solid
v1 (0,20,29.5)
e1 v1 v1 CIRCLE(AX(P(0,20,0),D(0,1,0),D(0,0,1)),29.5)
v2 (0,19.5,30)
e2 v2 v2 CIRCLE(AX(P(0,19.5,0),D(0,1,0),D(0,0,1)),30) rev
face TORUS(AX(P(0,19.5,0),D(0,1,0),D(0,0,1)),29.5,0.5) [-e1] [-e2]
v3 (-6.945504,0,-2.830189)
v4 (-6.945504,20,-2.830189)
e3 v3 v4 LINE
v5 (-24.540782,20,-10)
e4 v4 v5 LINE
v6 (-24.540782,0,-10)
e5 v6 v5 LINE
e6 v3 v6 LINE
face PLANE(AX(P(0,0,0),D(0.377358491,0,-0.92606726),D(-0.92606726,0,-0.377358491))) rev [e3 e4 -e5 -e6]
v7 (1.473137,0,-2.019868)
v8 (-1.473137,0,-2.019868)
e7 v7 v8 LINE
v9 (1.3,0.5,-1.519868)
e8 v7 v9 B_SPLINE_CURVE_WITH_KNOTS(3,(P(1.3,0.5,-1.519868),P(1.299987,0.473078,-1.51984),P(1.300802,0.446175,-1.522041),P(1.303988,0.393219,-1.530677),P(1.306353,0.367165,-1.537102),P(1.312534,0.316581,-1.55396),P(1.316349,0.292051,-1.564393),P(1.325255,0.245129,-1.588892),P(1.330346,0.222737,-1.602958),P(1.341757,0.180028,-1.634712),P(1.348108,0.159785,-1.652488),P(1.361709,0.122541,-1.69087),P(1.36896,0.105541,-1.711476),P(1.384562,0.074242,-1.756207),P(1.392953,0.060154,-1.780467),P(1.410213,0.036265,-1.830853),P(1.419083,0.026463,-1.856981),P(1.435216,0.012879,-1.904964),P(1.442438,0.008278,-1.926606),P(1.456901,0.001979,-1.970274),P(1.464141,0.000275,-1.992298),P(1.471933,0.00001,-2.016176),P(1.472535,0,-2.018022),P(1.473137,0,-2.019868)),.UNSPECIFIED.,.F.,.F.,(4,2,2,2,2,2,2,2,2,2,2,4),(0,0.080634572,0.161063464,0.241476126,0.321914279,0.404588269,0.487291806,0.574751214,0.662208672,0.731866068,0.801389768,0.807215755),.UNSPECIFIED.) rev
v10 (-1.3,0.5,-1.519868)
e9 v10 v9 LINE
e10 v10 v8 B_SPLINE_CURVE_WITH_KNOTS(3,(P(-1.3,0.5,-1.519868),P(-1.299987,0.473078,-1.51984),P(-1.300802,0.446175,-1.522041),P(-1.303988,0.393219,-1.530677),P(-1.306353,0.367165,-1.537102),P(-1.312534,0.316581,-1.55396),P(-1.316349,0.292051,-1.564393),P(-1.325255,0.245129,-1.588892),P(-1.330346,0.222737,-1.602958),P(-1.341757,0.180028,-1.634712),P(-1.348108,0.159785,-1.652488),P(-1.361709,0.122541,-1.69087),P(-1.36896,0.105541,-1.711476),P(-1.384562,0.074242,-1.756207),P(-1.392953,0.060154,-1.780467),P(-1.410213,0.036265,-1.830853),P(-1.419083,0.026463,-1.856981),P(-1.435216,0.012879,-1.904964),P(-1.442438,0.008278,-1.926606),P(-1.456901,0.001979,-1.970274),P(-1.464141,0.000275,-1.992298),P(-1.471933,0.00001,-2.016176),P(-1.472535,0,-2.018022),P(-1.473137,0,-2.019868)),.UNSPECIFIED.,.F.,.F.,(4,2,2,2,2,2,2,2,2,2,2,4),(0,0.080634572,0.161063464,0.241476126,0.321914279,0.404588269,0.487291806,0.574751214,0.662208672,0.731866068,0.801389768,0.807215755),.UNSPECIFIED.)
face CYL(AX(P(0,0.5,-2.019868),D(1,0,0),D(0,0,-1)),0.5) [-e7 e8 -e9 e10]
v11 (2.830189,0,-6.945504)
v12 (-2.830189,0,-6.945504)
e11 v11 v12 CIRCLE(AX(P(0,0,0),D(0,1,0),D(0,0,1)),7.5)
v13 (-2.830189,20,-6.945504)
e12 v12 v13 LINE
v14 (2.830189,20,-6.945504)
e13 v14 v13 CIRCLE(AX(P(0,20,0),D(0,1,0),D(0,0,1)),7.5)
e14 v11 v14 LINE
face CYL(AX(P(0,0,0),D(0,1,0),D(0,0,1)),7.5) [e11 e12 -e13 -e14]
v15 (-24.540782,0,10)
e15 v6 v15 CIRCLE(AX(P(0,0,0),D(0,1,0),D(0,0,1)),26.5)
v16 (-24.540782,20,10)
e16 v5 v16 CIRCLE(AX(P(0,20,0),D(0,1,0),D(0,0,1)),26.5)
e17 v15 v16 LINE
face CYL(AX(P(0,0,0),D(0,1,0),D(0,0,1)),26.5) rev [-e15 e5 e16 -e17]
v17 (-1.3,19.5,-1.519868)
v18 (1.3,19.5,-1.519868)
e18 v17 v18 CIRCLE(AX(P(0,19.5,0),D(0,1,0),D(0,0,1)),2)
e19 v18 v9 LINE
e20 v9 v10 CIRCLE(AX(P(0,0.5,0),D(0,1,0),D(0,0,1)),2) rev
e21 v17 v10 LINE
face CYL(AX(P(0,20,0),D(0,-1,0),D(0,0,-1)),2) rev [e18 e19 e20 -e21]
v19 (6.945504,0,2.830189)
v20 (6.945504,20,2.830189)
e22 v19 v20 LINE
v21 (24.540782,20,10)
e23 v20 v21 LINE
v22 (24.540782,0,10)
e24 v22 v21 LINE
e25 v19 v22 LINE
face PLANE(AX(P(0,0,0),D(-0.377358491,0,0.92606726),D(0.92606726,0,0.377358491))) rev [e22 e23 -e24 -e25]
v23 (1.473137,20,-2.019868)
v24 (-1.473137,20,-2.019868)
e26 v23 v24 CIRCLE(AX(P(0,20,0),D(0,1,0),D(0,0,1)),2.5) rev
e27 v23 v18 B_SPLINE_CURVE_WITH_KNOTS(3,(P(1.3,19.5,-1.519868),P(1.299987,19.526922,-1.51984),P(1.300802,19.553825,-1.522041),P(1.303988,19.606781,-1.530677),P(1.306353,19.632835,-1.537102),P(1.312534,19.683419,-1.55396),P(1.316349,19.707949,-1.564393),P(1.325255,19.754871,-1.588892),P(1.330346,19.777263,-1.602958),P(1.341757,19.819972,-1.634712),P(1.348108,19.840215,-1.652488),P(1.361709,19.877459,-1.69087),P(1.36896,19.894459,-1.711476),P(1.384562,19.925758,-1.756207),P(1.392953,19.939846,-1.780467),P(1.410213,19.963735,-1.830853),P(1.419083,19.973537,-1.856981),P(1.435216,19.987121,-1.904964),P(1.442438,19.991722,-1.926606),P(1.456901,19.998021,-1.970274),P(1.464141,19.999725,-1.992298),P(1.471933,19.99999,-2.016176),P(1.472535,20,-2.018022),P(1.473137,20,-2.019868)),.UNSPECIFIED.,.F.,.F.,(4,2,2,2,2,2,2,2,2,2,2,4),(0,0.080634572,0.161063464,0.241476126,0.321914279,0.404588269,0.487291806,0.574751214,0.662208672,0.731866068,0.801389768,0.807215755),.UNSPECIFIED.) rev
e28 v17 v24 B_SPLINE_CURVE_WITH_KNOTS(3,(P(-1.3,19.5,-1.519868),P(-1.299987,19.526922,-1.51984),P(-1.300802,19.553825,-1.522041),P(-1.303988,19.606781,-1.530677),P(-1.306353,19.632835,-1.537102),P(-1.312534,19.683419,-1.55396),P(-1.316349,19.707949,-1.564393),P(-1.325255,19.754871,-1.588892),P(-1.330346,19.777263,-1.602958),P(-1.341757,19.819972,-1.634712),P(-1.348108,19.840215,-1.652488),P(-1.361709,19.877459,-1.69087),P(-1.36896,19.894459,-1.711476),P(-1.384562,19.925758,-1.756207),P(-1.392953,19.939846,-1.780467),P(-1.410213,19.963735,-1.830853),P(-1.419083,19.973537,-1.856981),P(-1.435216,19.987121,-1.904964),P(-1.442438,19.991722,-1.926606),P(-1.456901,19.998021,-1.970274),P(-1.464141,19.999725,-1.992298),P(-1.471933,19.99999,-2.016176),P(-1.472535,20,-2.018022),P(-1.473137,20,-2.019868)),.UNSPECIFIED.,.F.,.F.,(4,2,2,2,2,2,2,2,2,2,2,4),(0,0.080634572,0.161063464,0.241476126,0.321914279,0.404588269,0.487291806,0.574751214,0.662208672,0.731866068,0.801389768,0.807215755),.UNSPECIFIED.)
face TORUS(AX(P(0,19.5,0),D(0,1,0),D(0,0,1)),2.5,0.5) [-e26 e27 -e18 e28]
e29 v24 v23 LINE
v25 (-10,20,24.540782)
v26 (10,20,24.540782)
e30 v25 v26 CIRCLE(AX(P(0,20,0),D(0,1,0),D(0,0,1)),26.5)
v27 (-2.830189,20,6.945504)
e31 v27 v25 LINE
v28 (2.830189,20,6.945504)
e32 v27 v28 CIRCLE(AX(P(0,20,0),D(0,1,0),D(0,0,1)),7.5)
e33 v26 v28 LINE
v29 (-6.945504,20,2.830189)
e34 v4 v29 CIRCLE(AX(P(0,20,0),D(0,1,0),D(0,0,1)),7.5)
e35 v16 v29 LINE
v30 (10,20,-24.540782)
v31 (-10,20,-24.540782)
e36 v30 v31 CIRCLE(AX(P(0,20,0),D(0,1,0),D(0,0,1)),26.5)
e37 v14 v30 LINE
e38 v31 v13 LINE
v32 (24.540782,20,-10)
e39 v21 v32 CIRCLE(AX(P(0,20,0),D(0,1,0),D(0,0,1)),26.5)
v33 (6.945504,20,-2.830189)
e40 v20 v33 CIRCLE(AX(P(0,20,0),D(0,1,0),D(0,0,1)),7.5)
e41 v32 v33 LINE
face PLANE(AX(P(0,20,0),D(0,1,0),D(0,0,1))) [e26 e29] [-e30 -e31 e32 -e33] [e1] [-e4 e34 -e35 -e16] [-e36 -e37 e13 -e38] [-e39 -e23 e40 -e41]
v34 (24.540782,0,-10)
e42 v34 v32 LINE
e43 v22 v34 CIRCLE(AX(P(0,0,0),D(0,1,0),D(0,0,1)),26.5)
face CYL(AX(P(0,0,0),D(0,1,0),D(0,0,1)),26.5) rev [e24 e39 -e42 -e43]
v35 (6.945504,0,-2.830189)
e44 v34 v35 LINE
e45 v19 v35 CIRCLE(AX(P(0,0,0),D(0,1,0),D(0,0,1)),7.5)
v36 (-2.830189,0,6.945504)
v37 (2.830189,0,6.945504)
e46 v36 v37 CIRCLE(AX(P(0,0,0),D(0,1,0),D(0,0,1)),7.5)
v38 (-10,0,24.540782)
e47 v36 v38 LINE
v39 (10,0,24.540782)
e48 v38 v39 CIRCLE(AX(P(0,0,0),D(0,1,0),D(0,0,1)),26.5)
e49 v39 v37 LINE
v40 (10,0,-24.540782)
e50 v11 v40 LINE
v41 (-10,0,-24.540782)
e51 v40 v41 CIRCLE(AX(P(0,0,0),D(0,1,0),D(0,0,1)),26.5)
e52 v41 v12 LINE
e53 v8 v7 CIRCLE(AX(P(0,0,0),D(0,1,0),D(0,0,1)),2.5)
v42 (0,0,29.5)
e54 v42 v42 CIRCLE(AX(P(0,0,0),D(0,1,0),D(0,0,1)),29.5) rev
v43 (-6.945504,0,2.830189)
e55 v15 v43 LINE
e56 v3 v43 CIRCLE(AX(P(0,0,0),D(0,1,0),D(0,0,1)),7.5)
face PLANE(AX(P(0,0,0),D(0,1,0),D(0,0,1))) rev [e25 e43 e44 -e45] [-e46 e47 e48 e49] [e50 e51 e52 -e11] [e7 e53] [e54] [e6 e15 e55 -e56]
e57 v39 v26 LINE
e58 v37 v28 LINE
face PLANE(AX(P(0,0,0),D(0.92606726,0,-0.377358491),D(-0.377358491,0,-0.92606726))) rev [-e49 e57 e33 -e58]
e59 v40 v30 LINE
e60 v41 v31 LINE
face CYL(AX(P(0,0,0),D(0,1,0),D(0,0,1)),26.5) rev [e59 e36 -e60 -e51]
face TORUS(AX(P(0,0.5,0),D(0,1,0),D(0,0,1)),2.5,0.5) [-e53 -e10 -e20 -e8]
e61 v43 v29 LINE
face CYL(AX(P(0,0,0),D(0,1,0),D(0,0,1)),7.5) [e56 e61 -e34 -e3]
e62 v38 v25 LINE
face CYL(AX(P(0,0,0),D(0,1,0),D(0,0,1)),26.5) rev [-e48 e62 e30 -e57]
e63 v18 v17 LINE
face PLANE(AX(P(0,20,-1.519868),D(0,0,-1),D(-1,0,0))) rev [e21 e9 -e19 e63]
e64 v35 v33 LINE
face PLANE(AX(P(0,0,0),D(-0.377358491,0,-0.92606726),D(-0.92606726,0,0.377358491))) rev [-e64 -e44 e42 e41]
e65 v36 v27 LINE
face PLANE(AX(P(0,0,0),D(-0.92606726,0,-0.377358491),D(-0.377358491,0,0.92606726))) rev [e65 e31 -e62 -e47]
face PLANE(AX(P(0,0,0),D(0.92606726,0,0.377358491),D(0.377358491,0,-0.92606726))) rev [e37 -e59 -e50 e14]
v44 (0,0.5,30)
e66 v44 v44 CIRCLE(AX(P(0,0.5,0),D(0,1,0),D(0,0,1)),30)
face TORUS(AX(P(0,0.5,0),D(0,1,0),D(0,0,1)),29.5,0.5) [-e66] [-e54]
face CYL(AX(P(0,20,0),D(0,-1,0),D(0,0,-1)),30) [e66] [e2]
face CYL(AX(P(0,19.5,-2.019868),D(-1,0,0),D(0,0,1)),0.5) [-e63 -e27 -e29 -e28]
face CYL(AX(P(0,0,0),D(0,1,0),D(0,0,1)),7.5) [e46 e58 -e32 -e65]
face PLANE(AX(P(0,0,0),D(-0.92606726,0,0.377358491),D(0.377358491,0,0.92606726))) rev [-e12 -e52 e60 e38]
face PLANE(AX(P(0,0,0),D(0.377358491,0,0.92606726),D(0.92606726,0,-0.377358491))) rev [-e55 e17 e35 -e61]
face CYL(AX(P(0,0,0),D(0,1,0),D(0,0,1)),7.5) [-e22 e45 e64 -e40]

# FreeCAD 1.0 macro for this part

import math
import FreeCAD as App
import Part
import Sketcher


def edges_at(feature, points):
    """Names of the edges that pass closest to the given points."""
    edges = feature.Shape.Edges
    near = lambda p: min(range(len(edges)), key=lambda i: edges[i].distToShape(Part.Vertex(*p))[0])
    return sorted({f"Edge{near(p) + 1}" for p in points})

doc = App.newDocument("Part")
params = doc.addObject("Spreadsheet::Sheet", "Params")
for row, (alias, value) in enumerate([
    ("sketch1_diameter", "60 mm"),
    ("sketch1_radius", "2 mm"),
    ("sketch1_width", "2.6 mm"),
    ("pad1_length", "20 mm"),
    ("fillet_radius", "0.5 mm"),
    ("sketch2_radius", "26.5 mm"),
    ("sketch2_radius2", "7.5 mm"),
    ("pocket1_length", "20 mm"),
], start=1):
    params.set(f"A{row}", alias)
    params.set(f"B{row}", "=" + value)
    params.setAlias(f"B{row}", alias)

body = doc.addObject("PartDesign::Body", "Body")

# Sketch on XZ plane
sketch1 = doc.addObject("Sketcher::SketchObject", "Sketch")
body.addObject(sketch1)
sketch1.AttachmentSupport = (doc.XZ_Plane, [""])
sketch1.MapMode = "FlatFace"
sketch1.addGeometry(Part.Circle(App.Vector(0, 0, 0), App.Vector(0, 0, 1), 30), False)
sketch1.addGeometry(Part.ArcOfCircle(Part.Circle(App.Vector(0, 0, 0), App.Vector(0, 0, 1), 2), math.radians(-49), math.radians(229)), False)
sketch1.addGeometry(Part.LineSegment(App.Vector(-1.3, -1.5, 0), App.Vector(1.3, -1.5, 0)), False)
sketch1.addConstraint(Sketcher.Constraint("Coincident", 1, 1, 2, 2))
sketch1.addConstraint(Sketcher.Constraint("Coincident", 2, 1, 1, 2))
sketch1.addConstraint(Sketcher.Constraint("Horizontal", 2))
sketch1.addConstraint(Sketcher.Constraint("Coincident", 0, 3, -1, 1))
sketch1.addConstraint(Sketcher.Constraint("Coincident", 1, 3, -1, 1))
sketch1.addConstraint(Sketcher.Constraint("Diameter", 0, 60.0))
sketch1.addConstraint(Sketcher.Constraint("Radius", 1, 2.0))
sketch1.addConstraint(Sketcher.Constraint("DistanceX", 2, 1, 2, 2, 2.6))
sketch1.setExpression("Constraints[5]", "Params.sketch1_diameter")
sketch1.setExpression("Constraints[6]", "Params.sketch1_radius")
sketch1.setExpression("Constraints[7]", "Params.sketch1_width")
pad1 = doc.addObject("PartDesign::Pad", "Pad")
body.addObject(pad1)
pad1.Profile = sketch1
pad1.setExpression("Length", "Params.pad1_length")
pad1.Reversed = True
doc.recompute()

fillet = doc.addObject("PartDesign::Fillet", "Fillet")
body.addObject(fillet)
fillet.Base = (pad1, edges_at(pad1, [
    (0, 20, -1.52),
    (-30, 20, 0),
    (-30, 0, 0),
    (0, 0, -1.52),
    (0, 0, 2),
    (0, 20, 2),
]))
fillet.setExpression("Radius", "Params.fillet_radius")

# Sketch on XZ plane
sketch2 = doc.addObject("Sketcher::SketchObject", "Sketch001")
body.addObject(sketch2)
sketch2.AttachmentSupport = (doc.XZ_Plane, [""])
sketch2.MapMode = "FlatFace"
sketch2.AttachmentOffset = App.Placement(App.Vector(0, 0, -20), App.Rotation())
sketch2.addGeometry(Part.ArcOfCircle(Part.Circle(App.Vector(0, 0, 0), App.Vector(0, 0, 1), 26.5), math.radians(-112), math.radians(-68)), False)
sketch2.addGeometry(Part.LineSegment(App.Vector(-10, -24.5, 0), App.Vector(-2.8, -6.9, 0)), False)
sketch2.addGeometry(Part.ArcOfCircle(Part.Circle(App.Vector(0, 0, 0), App.Vector(0, 0, 1), 7.5), math.radians(-112), math.radians(-68)), False)
sketch2.addGeometry(Part.LineSegment(App.Vector(2.8, -6.9, 0), App.Vector(10, -24.5, 0)), False)
sketch2.addGeometry(Part.LineSegment(App.Vector(-6.9, -2.8, 0), App.Vector(-24.5, -10, 0)), False)
sketch2.addGeometry(Part.ArcOfCircle(Part.Circle(App.Vector(0, 0, 0), App.Vector(0, 0, 1), 26.5), math.radians(158), math.radians(202)), False)
sketch2.addGeometry(Part.LineSegment(App.Vector(-24.5, 10, 0), App.Vector(-6.9, 2.8, 0)), False)
sketch2.addGeometry(Part.ArcOfCircle(Part.Circle(App.Vector(0, 0, 0), App.Vector(0, 0, 1), 7.5), math.radians(158), math.radians(202)), False)
sketch2.addGeometry(Part.ArcOfCircle(Part.Circle(App.Vector(0, 0, 0), App.Vector(0, 0, 1), 26.5), math.radians(-22), math.radians(0)), False)
sketch2.addGeometry(Part.LineSegment(App.Vector(24.5, -10, 0), App.Vector(6.9, -2.8, 0)), False)
sketch2.addGeometry(Part.ArcOfCircle(Part.Circle(App.Vector(0, 0, 0), App.Vector(0, 0, 1), 7.5), math.radians(-22), math.radians(0)), False)
sketch2.addGeometry(Part.ArcOfCircle(Part.Circle(App.Vector(0, 0, 0), App.Vector(0, 0, 1), 7.5), math.radians(0), math.radians(22)), False)
sketch2.addGeometry(Part.LineSegment(App.Vector(6.9, 2.8, 0), App.Vector(24.5, 10, 0)), False)
sketch2.addGeometry(Part.ArcOfCircle(Part.Circle(App.Vector(0, 0, 0), App.Vector(0, 0, 1), 26.5), math.radians(0), math.radians(22)), False)
sketch2.addGeometry(Part.LineSegment(App.Vector(-2.8, 6.9, 0), App.Vector(-10, 24.5, 0)), False)
sketch2.addGeometry(Part.ArcOfCircle(Part.Circle(App.Vector(0, 0, 0), App.Vector(0, 0, 1), 26.5), math.radians(68), math.radians(112)), False)
sketch2.addGeometry(Part.LineSegment(App.Vector(10, 24.5, 0), App.Vector(2.8, 6.9, 0)), False)
sketch2.addGeometry(Part.ArcOfCircle(Part.Circle(App.Vector(0, 0, 0), App.Vector(0, 0, 1), 7.5), math.radians(68), math.radians(112)), False)
sketch2.addConstraint(Sketcher.Constraint("Coincident", 0, 1, 1, 1))
sketch2.addConstraint(Sketcher.Constraint("Coincident", 1, 2, 2, 1))
sketch2.addConstraint(Sketcher.Constraint("Coincident", 2, 2, 3, 1))
sketch2.addConstraint(Sketcher.Constraint("Coincident", 3, 2, 0, 2))
sketch2.addConstraint(Sketcher.Constraint("Coincident", 4, 2, 5, 2))
sketch2.addConstraint(Sketcher.Constraint("Coincident", 5, 1, 6, 1))
sketch2.addConstraint(Sketcher.Constraint("Coincident", 6, 2, 7, 1))
sketch2.addConstraint(Sketcher.Constraint("Coincident", 7, 2, 4, 1))
sketch2.addConstraint(Sketcher.Constraint("Coincident", 8, 1, 9, 1))
sketch2.addConstraint(Sketcher.Constraint("Coincident", 9, 2, 10, 1))
sketch2.addConstraint(Sketcher.Constraint("Tangent", 10, 2, 11, 1))
sketch2.addConstraint(Sketcher.Constraint("Coincident", 11, 2, 12, 1))
sketch2.addConstraint(Sketcher.Constraint("Coincident", 12, 2, 13, 2))
sketch2.addConstraint(Sketcher.Constraint("Tangent", 13, 1, 8, 2))
sketch2.addConstraint(Sketcher.Constraint("Coincident", 14, 2, 15, 2))
sketch2.addConstraint(Sketcher.Constraint("Coincident", 15, 1, 16, 1))
sketch2.addConstraint(Sketcher.Constraint("Coincident", 16, 2, 17, 1))
sketch2.addConstraint(Sketcher.Constraint("Coincident", 17, 2, 14, 1))
sketch2.addConstraint(Sketcher.Constraint("Coincident", 0, 3, -1, 1))
sketch2.addConstraint(Sketcher.Constraint("Coincident", 2, 3, -1, 1))
sketch2.addConstraint(Sketcher.Constraint("Coincident", 5, 3, -1, 1))
sketch2.addConstraint(Sketcher.Constraint("Coincident", 7, 3, -1, 1))
sketch2.addConstraint(Sketcher.Constraint("Coincident", 8, 3, -1, 1))
sketch2.addConstraint(Sketcher.Constraint("Coincident", 10, 3, -1, 1))
sketch2.addConstraint(Sketcher.Constraint("Coincident", 15, 3, -1, 1))
sketch2.addConstraint(Sketcher.Constraint("Coincident", 17, 3, -1, 1))
sketch2.addConstraint(Sketcher.Constraint("Equal", 0, 5))
sketch2.addConstraint(Sketcher.Constraint("Equal", 2, 7))
sketch2.addConstraint(Sketcher.Constraint("Equal", 5, 8))
sketch2.addConstraint(Sketcher.Constraint("Equal", 7, 10))
sketch2.addConstraint(Sketcher.Constraint("Equal", 10, 11))
sketch2.addConstraint(Sketcher.Constraint("Equal", 8, 13))
sketch2.addConstraint(Sketcher.Constraint("Equal", 13, 15))
sketch2.addConstraint(Sketcher.Constraint("Equal", 11, 17))
sketch2.addConstraint(Sketcher.Constraint("PointOnObject", 10, 2, -1))
sketch2.addConstraint(Sketcher.Constraint("PointOnObject", 13, 1, -1))
sketch2.addConstraint(Sketcher.Constraint("Perpendicular", 3, 4))
sketch2.addConstraint(Sketcher.Constraint("Perpendicular", 1, 6))
sketch2.addConstraint(Sketcher.Constraint("Parallel", 6, 9))
sketch2.addConstraint(Sketcher.Constraint("Parallel", 4, 12))
sketch2.addConstraint(Sketcher.Constraint("Perpendicular", 12, 14))
sketch2.addConstraint(Sketcher.Constraint("Perpendicular", 9, 16))
sketch2.addConstraint(Sketcher.Constraint("Horizontal", 1, 2, 2, 2))
sketch2.addConstraint(Sketcher.Constraint("Horizontal", 0, 1, 3, 2))
sketch2.addConstraint(Sketcher.Constraint("Horizontal", 4, 2, 8, 1))
sketch2.addConstraint(Sketcher.Constraint("Horizontal", 6, 2, 11, 2))
sketch2.addConstraint(Sketcher.Constraint("Horizontal", 14, 2, 15, 1))
sketch2.addConstraint(Sketcher.Constraint("Vertical", 4, 2, 5, 1))
sketch2.addConstraint(Sketcher.Constraint("Vertical", 0, 1, 14, 2))
sketch2.addConstraint(Sketcher.Constraint("Radius", 0, 26.5))
sketch2.addConstraint(Sketcher.Constraint("Radius", 2, 7.5))
sketch2.addConstraint(Sketcher.Constraint("DistanceX", 0, 1, -1, 1, 10.0))
sketch2.addConstraint(Sketcher.Constraint("DistanceY", 4, 2, -1, 1, 10.0))
sketch2.addConstraint(Sketcher.Constraint("DistanceX", 1, 2, -1, 1, 2.830189))
sketch2.setExpression("Constraints[49]", "Params.sketch2_radius")
sketch2.setExpression("Constraints[50]", "Params.sketch2_radius2")
pocket1 = doc.addObject("PartDesign::Pocket", "Pocket")
body.addObject(pocket1)
pocket1.Profile = sketch2
pocket1.setExpression("Length", "Params.pocket1_length")
pocket1.Reversed = True

doc.recompute()
